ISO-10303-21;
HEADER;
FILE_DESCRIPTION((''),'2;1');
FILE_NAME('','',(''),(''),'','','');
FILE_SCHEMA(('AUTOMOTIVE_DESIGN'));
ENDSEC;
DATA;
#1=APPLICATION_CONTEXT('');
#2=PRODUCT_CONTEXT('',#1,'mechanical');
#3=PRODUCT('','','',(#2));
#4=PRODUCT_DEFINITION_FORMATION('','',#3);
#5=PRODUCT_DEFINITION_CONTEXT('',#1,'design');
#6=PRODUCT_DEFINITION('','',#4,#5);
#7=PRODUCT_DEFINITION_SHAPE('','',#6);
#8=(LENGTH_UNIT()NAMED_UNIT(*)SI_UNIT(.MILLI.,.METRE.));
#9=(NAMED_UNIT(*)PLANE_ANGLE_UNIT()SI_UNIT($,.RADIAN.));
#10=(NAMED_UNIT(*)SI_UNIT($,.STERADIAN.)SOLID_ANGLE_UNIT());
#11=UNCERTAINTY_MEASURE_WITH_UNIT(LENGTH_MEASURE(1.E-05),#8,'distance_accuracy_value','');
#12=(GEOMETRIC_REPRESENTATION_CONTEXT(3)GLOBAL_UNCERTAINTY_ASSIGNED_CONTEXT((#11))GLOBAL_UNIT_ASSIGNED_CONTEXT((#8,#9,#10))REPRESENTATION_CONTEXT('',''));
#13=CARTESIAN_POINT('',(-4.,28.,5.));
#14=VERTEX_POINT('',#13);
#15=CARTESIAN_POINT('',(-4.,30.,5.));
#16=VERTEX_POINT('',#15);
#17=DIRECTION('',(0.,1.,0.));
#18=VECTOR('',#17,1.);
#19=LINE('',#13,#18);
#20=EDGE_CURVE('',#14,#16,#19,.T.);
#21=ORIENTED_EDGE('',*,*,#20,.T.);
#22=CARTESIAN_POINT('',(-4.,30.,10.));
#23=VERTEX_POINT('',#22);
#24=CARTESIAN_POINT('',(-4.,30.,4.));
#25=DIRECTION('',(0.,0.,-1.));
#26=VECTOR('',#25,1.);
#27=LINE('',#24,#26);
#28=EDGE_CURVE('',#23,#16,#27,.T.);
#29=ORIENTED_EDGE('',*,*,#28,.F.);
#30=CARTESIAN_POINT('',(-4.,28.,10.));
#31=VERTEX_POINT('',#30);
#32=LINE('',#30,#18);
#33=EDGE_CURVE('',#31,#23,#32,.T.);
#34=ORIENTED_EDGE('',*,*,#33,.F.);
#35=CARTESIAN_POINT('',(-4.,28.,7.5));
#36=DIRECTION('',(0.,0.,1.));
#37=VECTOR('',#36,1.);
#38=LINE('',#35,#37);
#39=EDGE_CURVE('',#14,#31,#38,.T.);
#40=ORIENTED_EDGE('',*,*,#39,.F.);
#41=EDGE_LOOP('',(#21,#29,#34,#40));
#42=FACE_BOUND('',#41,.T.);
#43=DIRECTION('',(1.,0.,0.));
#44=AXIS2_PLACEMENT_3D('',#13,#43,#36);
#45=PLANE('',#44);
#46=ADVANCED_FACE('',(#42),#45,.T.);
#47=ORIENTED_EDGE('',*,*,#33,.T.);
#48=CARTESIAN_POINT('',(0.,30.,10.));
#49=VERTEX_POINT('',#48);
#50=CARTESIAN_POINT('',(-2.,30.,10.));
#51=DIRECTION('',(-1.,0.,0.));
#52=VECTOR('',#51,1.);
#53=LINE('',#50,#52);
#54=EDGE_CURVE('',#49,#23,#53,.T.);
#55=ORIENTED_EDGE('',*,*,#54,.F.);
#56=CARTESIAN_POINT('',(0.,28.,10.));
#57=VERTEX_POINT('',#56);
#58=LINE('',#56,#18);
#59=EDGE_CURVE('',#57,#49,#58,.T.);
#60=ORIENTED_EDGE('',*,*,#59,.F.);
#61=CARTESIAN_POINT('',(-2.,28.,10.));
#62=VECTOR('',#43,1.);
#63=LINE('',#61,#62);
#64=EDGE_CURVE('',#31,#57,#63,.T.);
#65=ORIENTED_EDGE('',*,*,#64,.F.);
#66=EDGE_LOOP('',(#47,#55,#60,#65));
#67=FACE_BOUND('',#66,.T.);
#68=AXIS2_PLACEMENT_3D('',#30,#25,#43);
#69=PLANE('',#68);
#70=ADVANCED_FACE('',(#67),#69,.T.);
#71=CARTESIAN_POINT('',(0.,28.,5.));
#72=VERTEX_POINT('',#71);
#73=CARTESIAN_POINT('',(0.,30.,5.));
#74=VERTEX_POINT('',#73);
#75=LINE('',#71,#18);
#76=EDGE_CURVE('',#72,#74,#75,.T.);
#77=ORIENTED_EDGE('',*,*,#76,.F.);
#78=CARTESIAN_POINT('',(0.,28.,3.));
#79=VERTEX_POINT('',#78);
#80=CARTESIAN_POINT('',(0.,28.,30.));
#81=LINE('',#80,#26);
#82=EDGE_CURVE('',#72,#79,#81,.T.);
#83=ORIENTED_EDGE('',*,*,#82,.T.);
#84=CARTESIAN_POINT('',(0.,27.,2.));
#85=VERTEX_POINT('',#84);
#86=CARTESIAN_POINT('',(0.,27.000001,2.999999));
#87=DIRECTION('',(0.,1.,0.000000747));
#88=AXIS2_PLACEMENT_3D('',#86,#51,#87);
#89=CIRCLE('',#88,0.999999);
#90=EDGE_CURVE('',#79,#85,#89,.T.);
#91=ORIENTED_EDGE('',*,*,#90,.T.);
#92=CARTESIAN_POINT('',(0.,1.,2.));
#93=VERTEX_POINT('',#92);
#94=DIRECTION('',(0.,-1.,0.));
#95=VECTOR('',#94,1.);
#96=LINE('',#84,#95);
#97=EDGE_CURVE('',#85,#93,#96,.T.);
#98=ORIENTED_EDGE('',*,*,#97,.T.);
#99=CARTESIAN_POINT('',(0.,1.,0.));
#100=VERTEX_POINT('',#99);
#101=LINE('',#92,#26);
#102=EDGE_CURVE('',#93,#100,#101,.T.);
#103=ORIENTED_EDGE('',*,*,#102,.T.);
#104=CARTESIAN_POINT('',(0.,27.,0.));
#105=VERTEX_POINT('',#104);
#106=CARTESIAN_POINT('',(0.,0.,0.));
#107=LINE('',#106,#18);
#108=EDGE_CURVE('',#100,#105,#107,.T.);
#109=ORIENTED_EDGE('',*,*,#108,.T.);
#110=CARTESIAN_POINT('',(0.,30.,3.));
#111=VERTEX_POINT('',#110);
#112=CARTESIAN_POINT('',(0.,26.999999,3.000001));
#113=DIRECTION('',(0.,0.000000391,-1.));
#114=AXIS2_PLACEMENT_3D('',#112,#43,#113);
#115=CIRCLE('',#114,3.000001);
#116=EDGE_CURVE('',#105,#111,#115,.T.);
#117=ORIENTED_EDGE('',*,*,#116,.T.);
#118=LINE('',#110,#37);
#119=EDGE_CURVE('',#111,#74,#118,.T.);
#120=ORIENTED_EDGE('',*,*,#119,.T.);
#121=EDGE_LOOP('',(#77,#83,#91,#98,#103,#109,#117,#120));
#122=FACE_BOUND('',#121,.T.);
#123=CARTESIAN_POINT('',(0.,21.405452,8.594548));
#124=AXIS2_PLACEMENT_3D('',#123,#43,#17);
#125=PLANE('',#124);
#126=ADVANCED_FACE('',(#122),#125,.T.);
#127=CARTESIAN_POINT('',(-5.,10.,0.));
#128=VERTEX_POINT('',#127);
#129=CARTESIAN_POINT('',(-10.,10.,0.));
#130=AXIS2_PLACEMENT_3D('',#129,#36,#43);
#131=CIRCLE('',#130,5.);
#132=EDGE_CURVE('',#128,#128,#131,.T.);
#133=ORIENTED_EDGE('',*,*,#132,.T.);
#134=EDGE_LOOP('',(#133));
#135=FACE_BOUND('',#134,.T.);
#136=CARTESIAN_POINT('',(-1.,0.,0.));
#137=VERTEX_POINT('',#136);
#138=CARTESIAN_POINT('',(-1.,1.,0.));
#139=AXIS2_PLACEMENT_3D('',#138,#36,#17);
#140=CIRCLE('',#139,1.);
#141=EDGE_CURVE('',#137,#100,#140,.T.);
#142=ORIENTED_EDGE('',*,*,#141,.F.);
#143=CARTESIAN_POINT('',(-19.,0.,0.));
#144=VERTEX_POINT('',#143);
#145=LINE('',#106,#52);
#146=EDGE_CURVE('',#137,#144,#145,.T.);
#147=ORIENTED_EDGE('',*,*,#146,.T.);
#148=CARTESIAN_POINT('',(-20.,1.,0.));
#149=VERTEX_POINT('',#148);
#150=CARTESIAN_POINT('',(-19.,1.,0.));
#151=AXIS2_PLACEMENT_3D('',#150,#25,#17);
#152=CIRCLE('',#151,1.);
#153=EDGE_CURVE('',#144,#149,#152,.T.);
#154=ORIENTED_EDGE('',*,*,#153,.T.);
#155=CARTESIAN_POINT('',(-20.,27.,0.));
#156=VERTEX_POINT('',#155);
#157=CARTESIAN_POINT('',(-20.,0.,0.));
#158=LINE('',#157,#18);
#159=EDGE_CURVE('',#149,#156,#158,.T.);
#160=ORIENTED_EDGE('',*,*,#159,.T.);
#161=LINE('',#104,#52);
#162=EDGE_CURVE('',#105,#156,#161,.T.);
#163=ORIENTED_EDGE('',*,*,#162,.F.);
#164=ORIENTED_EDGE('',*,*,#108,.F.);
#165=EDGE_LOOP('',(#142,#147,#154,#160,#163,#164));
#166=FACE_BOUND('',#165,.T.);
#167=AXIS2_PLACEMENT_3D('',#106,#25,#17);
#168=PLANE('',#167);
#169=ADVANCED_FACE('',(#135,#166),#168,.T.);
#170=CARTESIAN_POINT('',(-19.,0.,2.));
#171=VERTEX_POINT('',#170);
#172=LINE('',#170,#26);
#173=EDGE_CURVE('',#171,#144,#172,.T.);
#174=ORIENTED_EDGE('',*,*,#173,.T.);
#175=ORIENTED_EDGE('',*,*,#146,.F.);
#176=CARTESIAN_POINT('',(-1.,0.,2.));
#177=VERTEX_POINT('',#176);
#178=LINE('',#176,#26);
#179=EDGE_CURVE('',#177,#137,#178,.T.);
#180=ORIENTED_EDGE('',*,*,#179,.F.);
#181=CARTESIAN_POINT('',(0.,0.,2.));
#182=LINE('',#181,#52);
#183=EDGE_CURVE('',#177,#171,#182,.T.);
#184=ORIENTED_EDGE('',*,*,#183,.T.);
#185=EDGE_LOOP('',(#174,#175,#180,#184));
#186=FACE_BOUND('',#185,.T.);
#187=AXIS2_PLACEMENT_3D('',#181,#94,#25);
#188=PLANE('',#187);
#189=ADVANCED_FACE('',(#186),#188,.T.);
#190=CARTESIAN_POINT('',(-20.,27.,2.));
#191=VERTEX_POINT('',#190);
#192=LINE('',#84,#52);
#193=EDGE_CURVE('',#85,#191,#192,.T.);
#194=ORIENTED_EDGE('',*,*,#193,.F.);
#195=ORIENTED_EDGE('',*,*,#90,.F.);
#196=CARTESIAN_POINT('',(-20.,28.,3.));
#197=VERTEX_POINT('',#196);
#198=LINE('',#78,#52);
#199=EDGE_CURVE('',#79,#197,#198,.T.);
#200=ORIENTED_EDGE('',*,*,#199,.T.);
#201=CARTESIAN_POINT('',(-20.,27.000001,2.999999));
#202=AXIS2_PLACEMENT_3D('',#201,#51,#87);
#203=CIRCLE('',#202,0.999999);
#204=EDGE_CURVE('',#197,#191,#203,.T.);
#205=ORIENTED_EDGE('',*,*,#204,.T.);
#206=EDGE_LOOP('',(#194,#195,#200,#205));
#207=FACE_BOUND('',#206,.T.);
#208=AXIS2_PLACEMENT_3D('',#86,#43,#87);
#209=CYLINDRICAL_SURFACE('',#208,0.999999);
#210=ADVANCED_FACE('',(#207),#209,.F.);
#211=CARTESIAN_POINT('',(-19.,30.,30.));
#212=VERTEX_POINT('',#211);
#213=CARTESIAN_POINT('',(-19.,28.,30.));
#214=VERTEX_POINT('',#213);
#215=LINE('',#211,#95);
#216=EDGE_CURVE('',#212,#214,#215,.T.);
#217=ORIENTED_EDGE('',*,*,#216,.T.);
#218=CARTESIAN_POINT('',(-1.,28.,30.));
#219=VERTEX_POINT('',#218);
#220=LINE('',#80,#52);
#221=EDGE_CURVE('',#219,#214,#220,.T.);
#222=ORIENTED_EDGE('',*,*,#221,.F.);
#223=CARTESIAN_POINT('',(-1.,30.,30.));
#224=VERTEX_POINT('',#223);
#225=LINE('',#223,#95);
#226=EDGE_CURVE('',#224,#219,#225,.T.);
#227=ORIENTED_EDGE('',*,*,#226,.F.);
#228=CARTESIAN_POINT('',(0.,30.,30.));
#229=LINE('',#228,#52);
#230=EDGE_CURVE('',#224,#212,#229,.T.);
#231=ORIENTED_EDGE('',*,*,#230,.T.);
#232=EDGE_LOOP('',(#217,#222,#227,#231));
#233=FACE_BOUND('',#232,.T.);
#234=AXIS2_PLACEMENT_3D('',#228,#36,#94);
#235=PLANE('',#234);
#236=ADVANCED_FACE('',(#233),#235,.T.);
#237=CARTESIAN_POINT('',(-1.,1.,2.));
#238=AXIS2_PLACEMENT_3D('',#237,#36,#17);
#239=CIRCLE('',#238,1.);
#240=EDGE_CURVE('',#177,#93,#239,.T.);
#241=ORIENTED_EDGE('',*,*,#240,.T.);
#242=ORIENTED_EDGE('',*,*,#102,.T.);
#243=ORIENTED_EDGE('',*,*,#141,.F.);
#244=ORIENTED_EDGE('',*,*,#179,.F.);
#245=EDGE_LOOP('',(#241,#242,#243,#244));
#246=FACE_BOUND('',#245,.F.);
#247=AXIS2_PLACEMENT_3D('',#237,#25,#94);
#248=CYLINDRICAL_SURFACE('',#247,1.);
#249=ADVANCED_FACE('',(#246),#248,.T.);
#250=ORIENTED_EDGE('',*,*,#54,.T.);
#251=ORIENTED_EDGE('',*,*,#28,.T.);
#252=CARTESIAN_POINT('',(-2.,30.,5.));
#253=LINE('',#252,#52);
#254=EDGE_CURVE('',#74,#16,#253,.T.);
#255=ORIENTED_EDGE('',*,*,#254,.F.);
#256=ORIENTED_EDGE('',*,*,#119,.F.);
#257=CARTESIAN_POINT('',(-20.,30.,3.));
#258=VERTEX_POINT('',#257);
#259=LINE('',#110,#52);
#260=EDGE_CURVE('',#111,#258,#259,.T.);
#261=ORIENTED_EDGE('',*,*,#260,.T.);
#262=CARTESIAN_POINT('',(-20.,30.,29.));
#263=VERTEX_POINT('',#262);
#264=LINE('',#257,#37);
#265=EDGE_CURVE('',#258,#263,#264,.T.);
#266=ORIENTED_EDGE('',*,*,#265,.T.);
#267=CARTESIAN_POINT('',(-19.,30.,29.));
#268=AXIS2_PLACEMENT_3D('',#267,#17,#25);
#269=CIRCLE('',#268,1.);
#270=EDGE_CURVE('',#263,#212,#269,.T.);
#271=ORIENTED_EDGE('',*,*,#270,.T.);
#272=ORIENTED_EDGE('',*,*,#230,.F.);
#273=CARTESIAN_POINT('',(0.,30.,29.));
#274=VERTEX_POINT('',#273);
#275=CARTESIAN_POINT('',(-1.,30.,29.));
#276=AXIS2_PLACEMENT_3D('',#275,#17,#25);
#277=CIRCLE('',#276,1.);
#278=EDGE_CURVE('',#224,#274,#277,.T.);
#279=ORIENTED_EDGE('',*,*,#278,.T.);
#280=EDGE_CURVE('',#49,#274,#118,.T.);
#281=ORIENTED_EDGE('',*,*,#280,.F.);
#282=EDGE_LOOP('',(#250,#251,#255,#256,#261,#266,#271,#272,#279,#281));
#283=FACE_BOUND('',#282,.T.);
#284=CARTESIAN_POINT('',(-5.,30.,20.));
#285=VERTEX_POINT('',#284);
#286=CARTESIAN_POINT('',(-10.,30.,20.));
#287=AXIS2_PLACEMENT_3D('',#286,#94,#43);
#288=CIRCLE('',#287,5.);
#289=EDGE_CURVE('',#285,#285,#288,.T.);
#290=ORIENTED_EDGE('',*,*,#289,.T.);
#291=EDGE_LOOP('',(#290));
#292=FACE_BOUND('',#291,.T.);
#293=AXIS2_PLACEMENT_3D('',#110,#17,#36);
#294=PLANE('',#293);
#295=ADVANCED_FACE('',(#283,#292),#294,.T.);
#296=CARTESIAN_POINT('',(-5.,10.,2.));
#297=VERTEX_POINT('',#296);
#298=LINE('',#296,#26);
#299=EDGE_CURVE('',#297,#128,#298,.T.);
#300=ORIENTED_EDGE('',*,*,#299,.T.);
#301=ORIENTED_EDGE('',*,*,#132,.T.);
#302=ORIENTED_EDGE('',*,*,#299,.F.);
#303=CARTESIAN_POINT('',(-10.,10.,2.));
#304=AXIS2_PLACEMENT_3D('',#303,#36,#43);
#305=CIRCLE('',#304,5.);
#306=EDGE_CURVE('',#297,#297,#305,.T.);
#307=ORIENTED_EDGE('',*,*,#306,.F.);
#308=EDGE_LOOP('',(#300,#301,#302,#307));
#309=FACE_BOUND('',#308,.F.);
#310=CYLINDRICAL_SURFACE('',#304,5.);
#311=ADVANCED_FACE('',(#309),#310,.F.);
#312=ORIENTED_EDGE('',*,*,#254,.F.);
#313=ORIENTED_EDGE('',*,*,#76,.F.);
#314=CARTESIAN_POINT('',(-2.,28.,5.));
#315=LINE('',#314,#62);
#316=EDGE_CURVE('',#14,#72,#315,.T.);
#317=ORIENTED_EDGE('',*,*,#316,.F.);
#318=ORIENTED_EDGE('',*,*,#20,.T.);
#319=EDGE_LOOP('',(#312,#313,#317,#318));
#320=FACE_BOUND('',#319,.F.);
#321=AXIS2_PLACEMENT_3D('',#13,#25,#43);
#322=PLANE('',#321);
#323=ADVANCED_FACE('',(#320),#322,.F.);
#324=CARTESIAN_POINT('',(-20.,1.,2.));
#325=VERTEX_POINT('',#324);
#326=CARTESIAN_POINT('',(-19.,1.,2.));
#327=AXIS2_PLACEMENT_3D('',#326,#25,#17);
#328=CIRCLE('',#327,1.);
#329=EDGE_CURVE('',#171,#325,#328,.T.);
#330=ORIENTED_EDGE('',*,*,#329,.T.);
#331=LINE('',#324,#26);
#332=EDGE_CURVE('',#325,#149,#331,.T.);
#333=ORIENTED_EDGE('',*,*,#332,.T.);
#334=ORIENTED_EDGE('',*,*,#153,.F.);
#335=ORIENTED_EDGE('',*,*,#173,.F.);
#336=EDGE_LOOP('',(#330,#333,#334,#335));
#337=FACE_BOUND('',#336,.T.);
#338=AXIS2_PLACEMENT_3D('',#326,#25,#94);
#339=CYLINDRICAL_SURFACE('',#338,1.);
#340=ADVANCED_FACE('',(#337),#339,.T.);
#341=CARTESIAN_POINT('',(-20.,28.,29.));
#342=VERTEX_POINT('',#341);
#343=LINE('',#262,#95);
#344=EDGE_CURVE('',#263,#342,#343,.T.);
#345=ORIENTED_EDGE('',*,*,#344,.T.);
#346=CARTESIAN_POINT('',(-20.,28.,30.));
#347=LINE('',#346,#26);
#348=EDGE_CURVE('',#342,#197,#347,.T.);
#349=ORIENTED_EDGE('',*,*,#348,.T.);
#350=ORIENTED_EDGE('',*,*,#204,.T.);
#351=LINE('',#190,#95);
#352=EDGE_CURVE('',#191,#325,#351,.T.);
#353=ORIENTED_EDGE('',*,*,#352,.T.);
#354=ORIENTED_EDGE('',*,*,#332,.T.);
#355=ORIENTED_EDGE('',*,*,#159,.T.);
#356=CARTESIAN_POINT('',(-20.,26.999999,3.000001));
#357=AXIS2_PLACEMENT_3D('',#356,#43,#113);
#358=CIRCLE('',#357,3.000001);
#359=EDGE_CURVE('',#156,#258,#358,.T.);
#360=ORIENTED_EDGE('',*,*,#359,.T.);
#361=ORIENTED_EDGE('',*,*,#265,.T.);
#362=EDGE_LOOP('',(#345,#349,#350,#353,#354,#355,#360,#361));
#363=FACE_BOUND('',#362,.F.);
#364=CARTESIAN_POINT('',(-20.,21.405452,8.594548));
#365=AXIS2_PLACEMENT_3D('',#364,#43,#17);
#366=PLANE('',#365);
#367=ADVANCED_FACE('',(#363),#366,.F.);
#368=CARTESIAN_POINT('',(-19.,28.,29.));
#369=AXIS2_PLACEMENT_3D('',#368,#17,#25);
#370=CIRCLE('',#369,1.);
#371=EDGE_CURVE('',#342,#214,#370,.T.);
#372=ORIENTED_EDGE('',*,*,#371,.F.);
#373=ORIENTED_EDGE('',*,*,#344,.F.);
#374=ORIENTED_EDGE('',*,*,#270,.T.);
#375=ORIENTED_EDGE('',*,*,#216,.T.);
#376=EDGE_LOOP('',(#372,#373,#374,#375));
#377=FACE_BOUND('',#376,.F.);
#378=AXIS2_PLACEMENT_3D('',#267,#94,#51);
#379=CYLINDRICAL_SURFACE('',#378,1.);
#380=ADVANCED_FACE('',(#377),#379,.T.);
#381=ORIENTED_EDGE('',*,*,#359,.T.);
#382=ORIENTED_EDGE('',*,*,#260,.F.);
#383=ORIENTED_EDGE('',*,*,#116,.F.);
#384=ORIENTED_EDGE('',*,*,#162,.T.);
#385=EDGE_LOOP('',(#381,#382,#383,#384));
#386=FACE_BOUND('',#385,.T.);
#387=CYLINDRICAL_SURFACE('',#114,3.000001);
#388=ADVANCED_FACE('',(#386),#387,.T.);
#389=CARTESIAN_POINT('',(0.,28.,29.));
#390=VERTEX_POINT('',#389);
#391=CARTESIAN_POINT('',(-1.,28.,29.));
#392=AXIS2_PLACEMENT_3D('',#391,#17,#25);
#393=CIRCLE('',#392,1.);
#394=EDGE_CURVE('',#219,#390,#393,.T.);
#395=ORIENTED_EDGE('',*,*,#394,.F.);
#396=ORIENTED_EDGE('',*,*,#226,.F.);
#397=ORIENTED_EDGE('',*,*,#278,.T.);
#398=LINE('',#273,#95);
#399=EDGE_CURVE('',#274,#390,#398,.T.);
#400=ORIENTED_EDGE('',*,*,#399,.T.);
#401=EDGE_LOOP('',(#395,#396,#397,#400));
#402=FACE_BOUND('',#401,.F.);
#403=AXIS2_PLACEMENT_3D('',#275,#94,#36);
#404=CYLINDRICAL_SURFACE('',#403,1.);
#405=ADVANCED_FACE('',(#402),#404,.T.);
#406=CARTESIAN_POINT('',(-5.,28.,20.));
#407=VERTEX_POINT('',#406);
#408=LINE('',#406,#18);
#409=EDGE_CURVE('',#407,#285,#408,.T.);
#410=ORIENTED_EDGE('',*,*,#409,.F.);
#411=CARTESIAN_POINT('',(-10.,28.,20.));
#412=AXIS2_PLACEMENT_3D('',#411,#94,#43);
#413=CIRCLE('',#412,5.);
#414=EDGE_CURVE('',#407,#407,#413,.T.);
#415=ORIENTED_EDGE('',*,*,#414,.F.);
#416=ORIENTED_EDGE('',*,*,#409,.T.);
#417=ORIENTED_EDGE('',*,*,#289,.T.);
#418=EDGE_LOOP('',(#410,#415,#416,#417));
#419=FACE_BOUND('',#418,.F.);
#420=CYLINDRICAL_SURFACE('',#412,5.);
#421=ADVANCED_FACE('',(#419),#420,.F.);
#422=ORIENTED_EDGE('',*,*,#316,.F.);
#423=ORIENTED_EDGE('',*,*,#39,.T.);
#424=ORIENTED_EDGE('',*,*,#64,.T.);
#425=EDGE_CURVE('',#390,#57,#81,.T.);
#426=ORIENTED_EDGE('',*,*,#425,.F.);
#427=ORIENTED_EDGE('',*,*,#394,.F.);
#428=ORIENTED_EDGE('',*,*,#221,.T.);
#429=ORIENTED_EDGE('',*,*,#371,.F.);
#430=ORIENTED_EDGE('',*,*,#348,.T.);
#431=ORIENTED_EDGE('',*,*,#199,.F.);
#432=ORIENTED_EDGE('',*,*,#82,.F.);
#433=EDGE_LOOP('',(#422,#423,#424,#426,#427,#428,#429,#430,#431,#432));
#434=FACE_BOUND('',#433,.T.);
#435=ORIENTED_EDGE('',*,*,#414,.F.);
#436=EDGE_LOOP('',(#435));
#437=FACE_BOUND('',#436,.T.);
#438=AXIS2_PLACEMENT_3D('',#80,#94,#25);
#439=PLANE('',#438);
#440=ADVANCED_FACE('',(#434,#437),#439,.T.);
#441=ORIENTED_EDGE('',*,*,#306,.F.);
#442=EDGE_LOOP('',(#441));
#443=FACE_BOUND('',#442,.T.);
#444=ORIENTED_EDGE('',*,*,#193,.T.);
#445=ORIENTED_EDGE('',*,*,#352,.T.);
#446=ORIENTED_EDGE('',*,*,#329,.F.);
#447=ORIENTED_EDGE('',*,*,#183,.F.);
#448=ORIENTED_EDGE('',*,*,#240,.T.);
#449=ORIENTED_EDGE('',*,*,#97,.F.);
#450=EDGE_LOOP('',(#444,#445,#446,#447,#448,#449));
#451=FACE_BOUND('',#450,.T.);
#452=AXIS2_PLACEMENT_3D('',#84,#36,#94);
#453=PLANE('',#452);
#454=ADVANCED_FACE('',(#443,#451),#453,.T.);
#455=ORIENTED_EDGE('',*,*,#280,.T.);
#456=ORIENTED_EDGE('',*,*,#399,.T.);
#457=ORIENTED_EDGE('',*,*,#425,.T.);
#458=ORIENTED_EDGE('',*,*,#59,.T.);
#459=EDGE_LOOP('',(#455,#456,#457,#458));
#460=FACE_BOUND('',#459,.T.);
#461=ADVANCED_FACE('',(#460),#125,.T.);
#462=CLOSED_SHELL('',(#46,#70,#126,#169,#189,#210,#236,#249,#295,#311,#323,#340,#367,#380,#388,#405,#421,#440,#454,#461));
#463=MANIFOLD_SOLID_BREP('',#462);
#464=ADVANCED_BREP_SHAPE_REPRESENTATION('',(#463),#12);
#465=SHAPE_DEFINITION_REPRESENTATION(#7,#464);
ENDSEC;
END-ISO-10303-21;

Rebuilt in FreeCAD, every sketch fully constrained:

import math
import FreeCAD as App
import Part
import Sketcher

V = App.Vector
Q = App.Units.Quantity


def edges_at(feature, points):
    """Names of the edges that pass closest to the given points."""
    edges = feature.Shape.Edges
    near = lambda p: min(range(len(edges)), key=lambda i: edges[i].distToShape(Part.Vertex(*p))[0])
    return sorted({f"Edge{near(p) + 1}" for p in points})


def add_polygon(sketch, points):
    """Adds a closed chain of lines whose ends are joined by coincident constraints."""
    first, n = sketch.GeometryCount, len(points)
    for a, b in zip(points, points[1:] + points[:1]):
        sketch.addGeometry(Part.LineSegment(App.Vector(*a, 0), App.Vector(*b, 0)), False)
    for i in range(n):
        sketch.addConstraint(Sketcher.Constraint("Coincident", first + i, 2, first + (i + 1) % n, 1))

doc = App.newDocument("Part")
body = doc.addObject("PartDesign::Body", "Body")

sketch1 = doc.addObject("Sketcher::SketchObject", "Sketch")
body.addObject(sketch1)
sketch1.AttachmentSupport = (doc.YZ_Plane, [""])
sketch1.MapMode = "FlatFace"
sketch1.addGeometry([
    Part.LineSegment(V(0, 2, 0), V(0, 0, 0)),
    Part.LineSegment(V(0, 0, 0), V(27, 0, 0)),
    Part.ArcOfCircle(Part.Circle(V(27, 3, 0), V(0, 0, 1), 3), math.radians(-90), math.radians(0)),
    Part.LineSegment(V(30, 3, 0), V(30, 30, 0)),
    Part.LineSegment(V(30, 30, 0), V(28, 30, 0)),
    Part.LineSegment(V(28, 30, 0), V(28, 3, 0)),
    Part.ArcOfCircle(Part.Circle(V(27, 3, 0), V(0, 0, 1), 1), math.radians(-90), math.radians(0)),
    Part.LineSegment(V(27, 2, 0), V(0, 2, 0)),
], False)
sketch1.addConstraint([
    Sketcher.Constraint("Coincident", 0, 2, 1, 1),
    Sketcher.Constraint("Tangent", 1, 2, 2, 1),
    Sketcher.Constraint("Tangent", 2, 2, 3, 1),
    Sketcher.Constraint("Coincident", 3, 2, 4, 1),
    Sketcher.Constraint("Coincident", 4, 2, 5, 1),
    Sketcher.Constraint("Tangent", 5, 2, 6, 2),
    Sketcher.Constraint("Tangent", 6, 1, 7, 1),
    Sketcher.Constraint("Coincident", 7, 2, 0, 1),
    Sketcher.Constraint("Vertical", 0),
    Sketcher.Constraint("Horizontal", 1),
    Sketcher.Constraint("Vertical", 3),
    Sketcher.Constraint("Horizontal", 4),
    Sketcher.Constraint("Vertical", 5),
    Sketcher.Constraint("Horizontal", 7),
    Sketcher.Constraint("Coincident", 0, 2, -1, 1),
    Sketcher.Constraint("Coincident", 6, 3, 2, 3),
    Sketcher.Constraint("Equal", 7, 3),
    Sketcher.Constraint("Radius", 2, Q("3.000001 mm")),
    Sketcher.Constraint("Radius", 6, Q("0.999999 mm")),
    Sketcher.Constraint("DistanceX", 1, 1, 1, 2, Q("27 mm")),
])
pad1 = doc.addObject("PartDesign::Pad", "Pad")
body.addObject(pad1)
pad1.Profile = sketch1
pad1.Length = 20
pad1.Reversed = True

sketch2 = doc.addObject("Sketcher::SketchObject", "Sketch001")
body.addObject(sketch2)
sketch2.AttachmentSupport = (doc.XZ_Plane, [""])
sketch2.MapMode = "FlatFace"
sketch2.AttachmentOffset = App.Placement(V(0, 0, -28), App.Rotation())
sketch2.addGeometry(Part.Circle(V(-10, 20, 0), V(0, 0, 1), 5), False)
add_polygon(sketch2, [(-4, 10), (-4, 5), (0, 5), (0, 10)])
sketch2.addConstraint([
    Sketcher.Constraint("Vertical", 1),
    Sketcher.Constraint("Horizontal", 2),
    Sketcher.Constraint("Vertical", 3),
    Sketcher.Constraint("Horizontal", 4),
    Sketcher.Constraint("PointOnObject", 2, 2, -2),
    Sketcher.Constraint("Diameter", 0, Q("10 mm")),
    Sketcher.Constraint("DistanceX", 2, 1, 2, 2, Q("4 mm")),
    Sketcher.Constraint("DistanceY", 1, 2, 1, 1, Q("5 mm")),
    Sketcher.Constraint("DistanceX", 0, 3, -1, 1, Q("10 mm")),
    Sketcher.Constraint("DistanceY", -1, 1, 0, 3, Q("20 mm")),
    Sketcher.Constraint("DistanceY", -1, 1, 1, 2, Q("5 mm")),
])
pocket1 = doc.addObject("PartDesign::Pocket", "Pocket")
body.addObject(pocket1)
pocket1.Profile = sketch2
pocket1.Type = "ThroughAll"

sketch3 = doc.addObject("Sketcher::SketchObject", "Sketch002")
body.addObject(sketch3)
sketch3.AttachmentSupport = (doc.XY_Plane, [""])
sketch3.MapMode = "FlatFace"
sketch3.AttachmentOffset = App.Placement(V(0, 0, 2), App.Rotation())
sketch3.addGeometry(Part.Circle(V(-10, 10, 0), V(0, 0, 1), 5), False)
sketch3.addConstraint([
    Sketcher.Constraint("Diameter", 0, Q("10 mm")),
    Sketcher.Constraint("DistanceX", 0, 3, -1, 1, Q("10 mm")),
    Sketcher.Constraint("DistanceY", -1, 1, 0, 3, Q("10 mm")),
])
pocket2 = doc.addObject("PartDesign::Pocket", "Pocket001")
body.addObject(pocket2)
pocket2.Profile = sketch3
pocket2.Type = "ThroughAll"
doc.recompute()

fillet = doc.addObject("PartDesign::Fillet", "Fillet")
body.addObject(fillet)
fillet.Base = (pocket2, edges_at(pocket2, [
    (0, 0, 1),
    (-20, 0, 1),
    (0, 29, 30),
    (-20, 29, 30),
]))
fillet.Radius = 1

doc.recompute()
